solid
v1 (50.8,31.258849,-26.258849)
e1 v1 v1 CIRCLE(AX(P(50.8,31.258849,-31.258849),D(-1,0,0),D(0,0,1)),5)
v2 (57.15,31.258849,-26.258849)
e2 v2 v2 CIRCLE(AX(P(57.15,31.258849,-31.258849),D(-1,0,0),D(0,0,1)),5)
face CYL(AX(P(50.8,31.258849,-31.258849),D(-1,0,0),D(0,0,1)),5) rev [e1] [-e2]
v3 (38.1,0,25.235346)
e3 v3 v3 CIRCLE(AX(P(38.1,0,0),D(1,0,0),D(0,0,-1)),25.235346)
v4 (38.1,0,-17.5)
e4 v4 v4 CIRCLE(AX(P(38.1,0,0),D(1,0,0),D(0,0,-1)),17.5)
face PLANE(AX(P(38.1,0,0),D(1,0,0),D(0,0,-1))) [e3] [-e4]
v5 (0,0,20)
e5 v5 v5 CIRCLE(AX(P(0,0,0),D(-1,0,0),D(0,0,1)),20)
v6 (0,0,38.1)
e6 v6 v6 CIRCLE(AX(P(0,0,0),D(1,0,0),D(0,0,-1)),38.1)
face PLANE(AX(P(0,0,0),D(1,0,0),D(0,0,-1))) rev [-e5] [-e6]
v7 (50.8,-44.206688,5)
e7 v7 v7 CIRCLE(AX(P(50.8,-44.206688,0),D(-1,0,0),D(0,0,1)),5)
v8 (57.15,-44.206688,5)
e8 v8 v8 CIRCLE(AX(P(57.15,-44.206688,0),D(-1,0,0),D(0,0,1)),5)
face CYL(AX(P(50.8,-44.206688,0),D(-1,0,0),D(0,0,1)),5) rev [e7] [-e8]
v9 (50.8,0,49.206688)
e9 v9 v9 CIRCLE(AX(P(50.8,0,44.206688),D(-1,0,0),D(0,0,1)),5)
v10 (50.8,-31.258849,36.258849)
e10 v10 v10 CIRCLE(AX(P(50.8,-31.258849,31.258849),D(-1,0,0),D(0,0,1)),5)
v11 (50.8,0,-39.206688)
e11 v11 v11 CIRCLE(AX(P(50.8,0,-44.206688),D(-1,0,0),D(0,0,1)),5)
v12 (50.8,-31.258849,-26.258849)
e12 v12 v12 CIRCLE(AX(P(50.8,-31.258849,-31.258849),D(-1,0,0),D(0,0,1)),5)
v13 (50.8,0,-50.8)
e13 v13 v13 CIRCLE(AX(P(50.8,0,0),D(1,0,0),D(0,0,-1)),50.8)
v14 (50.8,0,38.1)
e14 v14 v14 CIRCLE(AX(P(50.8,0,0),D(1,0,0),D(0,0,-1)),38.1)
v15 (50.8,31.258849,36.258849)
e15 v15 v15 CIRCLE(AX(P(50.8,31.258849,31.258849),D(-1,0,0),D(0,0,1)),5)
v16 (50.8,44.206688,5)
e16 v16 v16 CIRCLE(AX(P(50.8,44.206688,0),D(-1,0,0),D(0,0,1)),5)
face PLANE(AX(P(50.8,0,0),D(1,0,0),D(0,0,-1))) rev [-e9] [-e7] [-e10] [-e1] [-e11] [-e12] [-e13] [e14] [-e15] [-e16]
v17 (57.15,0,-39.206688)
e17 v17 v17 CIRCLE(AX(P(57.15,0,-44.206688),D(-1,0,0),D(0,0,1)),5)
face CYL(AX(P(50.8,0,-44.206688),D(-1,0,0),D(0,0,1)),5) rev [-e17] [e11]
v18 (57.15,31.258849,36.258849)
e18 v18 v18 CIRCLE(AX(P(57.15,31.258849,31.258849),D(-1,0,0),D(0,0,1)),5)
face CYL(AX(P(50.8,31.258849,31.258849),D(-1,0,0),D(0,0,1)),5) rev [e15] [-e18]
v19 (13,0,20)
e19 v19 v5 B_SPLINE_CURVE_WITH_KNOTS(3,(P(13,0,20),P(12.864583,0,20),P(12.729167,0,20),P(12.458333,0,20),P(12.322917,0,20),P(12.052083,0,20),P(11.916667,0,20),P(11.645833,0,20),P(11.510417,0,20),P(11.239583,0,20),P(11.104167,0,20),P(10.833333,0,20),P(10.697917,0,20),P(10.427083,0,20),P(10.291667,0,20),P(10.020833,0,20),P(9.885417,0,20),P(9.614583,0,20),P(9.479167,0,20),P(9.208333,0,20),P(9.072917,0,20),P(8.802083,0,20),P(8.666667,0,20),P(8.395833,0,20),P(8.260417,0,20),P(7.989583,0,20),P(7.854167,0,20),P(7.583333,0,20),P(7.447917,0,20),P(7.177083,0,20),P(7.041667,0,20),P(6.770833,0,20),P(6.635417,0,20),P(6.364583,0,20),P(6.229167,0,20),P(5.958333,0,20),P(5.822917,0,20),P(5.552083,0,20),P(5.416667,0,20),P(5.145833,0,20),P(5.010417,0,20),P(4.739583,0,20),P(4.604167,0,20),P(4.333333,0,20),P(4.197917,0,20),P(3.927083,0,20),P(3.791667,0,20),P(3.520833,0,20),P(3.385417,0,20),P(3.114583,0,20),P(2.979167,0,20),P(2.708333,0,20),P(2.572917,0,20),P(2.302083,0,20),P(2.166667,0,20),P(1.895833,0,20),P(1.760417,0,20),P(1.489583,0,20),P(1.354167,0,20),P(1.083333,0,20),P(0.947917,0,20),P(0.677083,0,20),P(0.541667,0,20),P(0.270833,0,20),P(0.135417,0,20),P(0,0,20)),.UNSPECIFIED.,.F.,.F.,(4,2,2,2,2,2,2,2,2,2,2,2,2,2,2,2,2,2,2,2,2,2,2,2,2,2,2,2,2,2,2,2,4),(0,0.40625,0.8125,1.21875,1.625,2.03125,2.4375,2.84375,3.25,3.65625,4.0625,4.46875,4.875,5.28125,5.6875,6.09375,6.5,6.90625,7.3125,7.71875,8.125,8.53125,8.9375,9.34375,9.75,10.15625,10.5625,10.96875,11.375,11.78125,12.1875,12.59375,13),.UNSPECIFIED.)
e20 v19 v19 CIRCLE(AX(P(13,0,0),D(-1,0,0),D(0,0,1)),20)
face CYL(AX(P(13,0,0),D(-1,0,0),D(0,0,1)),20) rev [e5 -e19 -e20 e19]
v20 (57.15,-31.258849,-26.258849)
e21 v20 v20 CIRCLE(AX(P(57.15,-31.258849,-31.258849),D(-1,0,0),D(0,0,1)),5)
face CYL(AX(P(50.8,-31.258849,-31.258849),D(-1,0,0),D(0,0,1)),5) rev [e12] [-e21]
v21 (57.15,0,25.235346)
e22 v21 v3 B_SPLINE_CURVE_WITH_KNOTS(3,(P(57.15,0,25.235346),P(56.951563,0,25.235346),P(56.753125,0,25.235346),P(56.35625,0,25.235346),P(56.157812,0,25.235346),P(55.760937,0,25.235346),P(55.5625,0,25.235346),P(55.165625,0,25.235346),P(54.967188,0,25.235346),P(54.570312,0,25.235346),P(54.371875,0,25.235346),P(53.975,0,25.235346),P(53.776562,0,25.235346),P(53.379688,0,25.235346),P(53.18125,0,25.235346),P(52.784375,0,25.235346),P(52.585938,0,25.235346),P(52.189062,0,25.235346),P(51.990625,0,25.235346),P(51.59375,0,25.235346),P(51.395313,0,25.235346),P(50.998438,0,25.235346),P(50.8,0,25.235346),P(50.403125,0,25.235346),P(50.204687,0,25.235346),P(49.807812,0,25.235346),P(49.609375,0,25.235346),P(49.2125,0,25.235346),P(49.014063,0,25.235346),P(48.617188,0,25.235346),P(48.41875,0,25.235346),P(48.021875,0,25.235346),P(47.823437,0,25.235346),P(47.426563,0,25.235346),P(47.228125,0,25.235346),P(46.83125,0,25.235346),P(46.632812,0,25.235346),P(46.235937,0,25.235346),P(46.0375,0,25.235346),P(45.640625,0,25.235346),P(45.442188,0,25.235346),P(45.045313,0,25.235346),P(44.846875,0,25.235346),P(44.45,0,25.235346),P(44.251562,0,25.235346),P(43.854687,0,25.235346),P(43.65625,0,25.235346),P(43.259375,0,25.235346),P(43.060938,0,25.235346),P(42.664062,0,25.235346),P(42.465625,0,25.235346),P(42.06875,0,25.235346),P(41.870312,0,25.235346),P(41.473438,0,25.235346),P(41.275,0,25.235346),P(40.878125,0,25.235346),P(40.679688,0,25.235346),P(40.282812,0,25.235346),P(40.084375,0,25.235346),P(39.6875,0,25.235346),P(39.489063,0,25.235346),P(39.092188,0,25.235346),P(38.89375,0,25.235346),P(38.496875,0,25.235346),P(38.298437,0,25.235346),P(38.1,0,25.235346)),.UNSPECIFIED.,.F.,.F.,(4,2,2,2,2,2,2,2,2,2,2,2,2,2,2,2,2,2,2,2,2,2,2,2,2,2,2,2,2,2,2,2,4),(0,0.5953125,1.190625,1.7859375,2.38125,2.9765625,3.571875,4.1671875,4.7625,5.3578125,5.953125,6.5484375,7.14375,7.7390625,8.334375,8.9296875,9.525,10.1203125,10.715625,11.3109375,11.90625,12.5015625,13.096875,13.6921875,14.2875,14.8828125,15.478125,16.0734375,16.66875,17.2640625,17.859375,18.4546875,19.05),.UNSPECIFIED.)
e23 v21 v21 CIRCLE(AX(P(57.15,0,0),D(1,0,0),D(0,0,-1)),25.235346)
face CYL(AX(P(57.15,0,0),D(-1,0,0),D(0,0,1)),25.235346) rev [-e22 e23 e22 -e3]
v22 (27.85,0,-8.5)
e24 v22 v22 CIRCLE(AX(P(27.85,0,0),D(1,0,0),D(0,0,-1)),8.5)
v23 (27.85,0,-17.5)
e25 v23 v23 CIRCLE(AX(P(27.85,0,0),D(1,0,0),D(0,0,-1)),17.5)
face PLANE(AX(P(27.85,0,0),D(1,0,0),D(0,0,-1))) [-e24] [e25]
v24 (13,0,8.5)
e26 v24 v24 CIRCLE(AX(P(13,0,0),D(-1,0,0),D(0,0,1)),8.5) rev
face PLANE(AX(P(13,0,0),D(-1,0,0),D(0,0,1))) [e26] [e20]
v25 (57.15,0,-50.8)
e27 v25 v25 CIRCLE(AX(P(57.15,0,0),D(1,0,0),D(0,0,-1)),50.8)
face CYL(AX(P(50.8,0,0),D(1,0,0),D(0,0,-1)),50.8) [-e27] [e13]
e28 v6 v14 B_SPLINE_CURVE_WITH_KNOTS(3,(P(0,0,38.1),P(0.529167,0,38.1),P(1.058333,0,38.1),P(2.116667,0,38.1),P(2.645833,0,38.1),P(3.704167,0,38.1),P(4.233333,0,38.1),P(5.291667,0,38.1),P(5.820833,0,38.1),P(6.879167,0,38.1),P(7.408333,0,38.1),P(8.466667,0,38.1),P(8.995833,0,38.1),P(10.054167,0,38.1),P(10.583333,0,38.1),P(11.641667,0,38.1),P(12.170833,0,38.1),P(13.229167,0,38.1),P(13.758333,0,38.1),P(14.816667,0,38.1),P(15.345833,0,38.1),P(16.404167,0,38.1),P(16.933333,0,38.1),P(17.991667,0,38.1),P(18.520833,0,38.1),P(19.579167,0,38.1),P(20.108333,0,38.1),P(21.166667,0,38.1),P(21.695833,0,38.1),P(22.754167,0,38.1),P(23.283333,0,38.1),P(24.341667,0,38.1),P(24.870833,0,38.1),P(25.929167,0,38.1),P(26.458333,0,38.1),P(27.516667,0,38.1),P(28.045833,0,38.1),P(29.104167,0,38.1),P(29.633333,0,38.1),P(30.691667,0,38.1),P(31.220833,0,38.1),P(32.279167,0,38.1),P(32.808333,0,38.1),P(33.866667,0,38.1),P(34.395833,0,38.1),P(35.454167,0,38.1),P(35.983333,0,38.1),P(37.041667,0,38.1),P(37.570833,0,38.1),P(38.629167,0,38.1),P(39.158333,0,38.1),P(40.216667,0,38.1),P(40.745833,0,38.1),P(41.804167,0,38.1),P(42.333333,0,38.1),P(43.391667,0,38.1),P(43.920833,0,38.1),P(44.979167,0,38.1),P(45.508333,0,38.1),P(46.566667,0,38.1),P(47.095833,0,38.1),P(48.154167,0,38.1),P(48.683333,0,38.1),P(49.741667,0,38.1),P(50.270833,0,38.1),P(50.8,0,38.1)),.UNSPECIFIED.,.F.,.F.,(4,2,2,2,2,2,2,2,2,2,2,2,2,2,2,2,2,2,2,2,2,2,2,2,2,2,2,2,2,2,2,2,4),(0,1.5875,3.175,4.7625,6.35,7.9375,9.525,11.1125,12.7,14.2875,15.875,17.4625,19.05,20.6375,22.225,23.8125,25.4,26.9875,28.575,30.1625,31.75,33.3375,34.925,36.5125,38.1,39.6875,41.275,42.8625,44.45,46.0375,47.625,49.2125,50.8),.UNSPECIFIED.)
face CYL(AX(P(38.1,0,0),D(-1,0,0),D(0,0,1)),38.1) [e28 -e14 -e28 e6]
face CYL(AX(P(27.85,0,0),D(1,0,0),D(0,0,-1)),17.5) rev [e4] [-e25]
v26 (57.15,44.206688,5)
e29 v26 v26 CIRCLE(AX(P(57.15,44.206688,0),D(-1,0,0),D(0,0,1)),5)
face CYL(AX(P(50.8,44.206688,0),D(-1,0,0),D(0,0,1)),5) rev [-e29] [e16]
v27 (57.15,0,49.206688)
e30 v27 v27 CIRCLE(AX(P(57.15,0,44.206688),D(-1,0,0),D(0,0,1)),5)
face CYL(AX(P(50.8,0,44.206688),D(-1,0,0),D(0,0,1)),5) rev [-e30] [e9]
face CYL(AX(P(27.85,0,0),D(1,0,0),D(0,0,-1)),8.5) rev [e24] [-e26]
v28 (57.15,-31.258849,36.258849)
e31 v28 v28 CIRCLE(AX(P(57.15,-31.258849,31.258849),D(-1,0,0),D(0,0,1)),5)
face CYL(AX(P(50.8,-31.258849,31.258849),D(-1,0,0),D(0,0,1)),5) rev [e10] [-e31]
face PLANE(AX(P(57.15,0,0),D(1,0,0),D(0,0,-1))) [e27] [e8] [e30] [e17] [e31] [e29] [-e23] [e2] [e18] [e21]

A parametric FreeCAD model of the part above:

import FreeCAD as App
import Part
import Sketcher

V = App.Vector
Q = App.Units.Quantity

doc = App.newDocument("Part")
body = doc.addObject("PartDesign::Body", "Body")

# Sketch on YZ plane
sketch1 = body.newObject("Sketcher::SketchObject", "Sketch")
sketch1.AttachmentSupport = (doc.getObject("YZ_Plane"), [""])
sketch1.MapMode = "FlatFace"
sketch1.addGeometry(Part.Circle(V(0, 0, 0), V(0, 0, 1), 38.1), False)
sketch1.addConstraint([
    Sketcher.Constraint("Coincident", 0, 3, -1, 1),
    Sketcher.Constraint("Diameter", 0, Q("76.2 mm")),
])
pad1 = body.newObject("PartDesign::Pad", "Pad")
pad1.Profile = sketch1
pad1.Length = 38.1

# Sketch on YZ plane
sketch2 = body.newObject("Sketcher::SketchObject", "Sketch001")
sketch2.AttachmentSupport = (doc.getObject("YZ_Plane"), [""])
sketch2.MapMode = "FlatFace"
sketch2.AttachmentOffset = App.Placement(V(0, 0, 38.1), App.Rotation())
sketch2.addGeometry(Part.Circle(V(0, 0, 0), V(0, 0, 1), 17.5), False)
sketch2.addConstraint([
    Sketcher.Constraint("Coincident", 0, 3, -1, 1),
    Sketcher.Constraint("Diameter", 0, Q("35 mm")),
])
pocket1 = body.newObject("PartDesign::Pocket", "Pocket")
pocket1.Profile = sketch2
pocket1.Length = 10.25

# Sketch on YZ plane
sketch3 = body.newObject("Sketcher::SketchObject", "Sketch002")
sketch3.AttachmentSupport = (doc.getObject("YZ_Plane"), [""])
sketch3.MapMode = "FlatFace"
sketch3.AttachmentOffset = App.Placement(V(0, 0, 27.85), App.Rotation())
sketch3.addGeometry(Part.Circle(V(0, 0, 0), V(0, 0, 1), 8.5), False)
sketch3.addConstraint([
    Sketcher.Constraint("Coincident", 0, 3, -1, 1),
    Sketcher.Constraint("Diameter", 0, Q("17 mm")),
])
doc.recompute()
hole = body.newObject("PartDesign::Hole", "Hole")
hole.Profile = sketch3
hole.ThreadType = "None"
hole.Diameter = 17
hole.DepthType = "ThroughAll"

# Sketch on YZ plane
sketch4 = body.newObject("Sketcher::SketchObject", "Sketch003")
sketch4.AttachmentSupport = (doc.getObject("YZ_Plane"), [""])
sketch4.MapMode = "FlatFace"
sketch4.AttachmentOffset = App.Placement(V(0, 0, 38.1), App.Rotation())
sketch4.addGeometry([
    Part.Circle(V(0, 0, 0), V(0, 0, 1), 38.1),
    Part.Circle(V(0, 0, 0), V(0, 0, 1), 25.235346),
], False)
sketch4.addConstraint([
    Sketcher.Constraint("Coincident", 0, 3, -1, 1),
    Sketcher.Constraint("Coincident", 1, 3, -1, 1),
    Sketcher.Constraint("Diameter", 0, Q("76.2 mm")),
    Sketcher.Constraint("Diameter", 1, Q("50.470693 mm")),
])
pad2 = body.newObject("PartDesign::Pad", "Pad001")
pad2.Profile = sketch4
pad2.Length = 19.05

# Sketch on YZ plane
sketch5 = body.newObject("Sketcher::SketchObject", "Sketch004")
sketch5.AttachmentSupport = (doc.getObject("YZ_Plane"), [""])
sketch5.MapMode = "FlatFace"
sketch5.AttachmentOffset = App.Placement(V(0, 0, 50.8), App.Rotation())
sketch5.addGeometry([
    Part.Circle(V(0, 0, 0), V(0, 0, 1), 50.8),
    Part.Circle(V(0, 0, 0), V(0, 0, 1), 25.235346),
], False)
sketch5.addConstraint([
    Sketcher.Constraint("Coincident", 0, 3, -1, 1),
    Sketcher.Constraint("Coincident", 1, 3, -1, 1),
    Sketcher.Constraint("Diameter", 0, Q("101.6 mm")),
    Sketcher.Constraint("Diameter", 1, Q("50.470693 mm")),
])
pad3 = body.newObject("PartDesign::Pad", "Pad002")
pad3.Profile = sketch5
pad3.Length = 6.35

# Sketch on YZ plane
sketch6 = body.newObject("Sketcher::SketchObject", "Sketch005")
sketch6.AttachmentSupport = (doc.getObject("YZ_Plane"), [""])
sketch6.MapMode = "FlatFace"
sketch6.addGeometry(Part.Circle(V(0, 0, 0), V(0, 0, 1), 20), False)
sketch6.addConstraint([
    Sketcher.Constraint("Coincident", 0, 3, -1, 1),
    Sketcher.Constraint("Diameter", 0, Q("40 mm")),
])
pocket2 = body.newObject("PartDesign::Pocket", "Pocket001")
pocket2.Profile = sketch6
pocket2.Length = 13
pocket2.Reversed = True

# Sketch on YZ plane
sketch7 = body.newObject("Sketcher::SketchObject", "Sketch006")
sketch7.AttachmentSupport = (doc.getObject("YZ_Plane"), [""])
sketch7.MapMode = "FlatFace"
sketch7.AttachmentOffset = App.Placement(V(0, 0, 50.8), App.Rotation())
sketch7.addGeometry([
    Part.Circle(V(0, -44.206688, 0), V(0, 0, 1), 5),  # 0
    Part.Circle(V(31.258849, -31.258849, 0), V(0, 0, 1), 5),  # 1
    Part.Circle(V(44.206688, 0, 0), V(0, 0, 1), 5),  # 2
    Part.Circle(V(31.258849, 31.258849, 0), V(0, 0, 1), 5),  # 3
    Part.Circle(V(0, 44.206688, 0), V(0, 0, 1), 5),  # 4
    Part.Circle(V(-31.258849, 31.258849, 0), V(0, 0, 1), 5),  # 5
    Part.Circle(V(-44.206688, 0, 0), V(0, 0, 1), 5),  # 6
    Part.Circle(V(-31.258849, -31.258849, 0), V(0, 0, 1), 5),  # 7
    Part.Circle(V(0, 0, 0), V(0, 0, 1), 5),  # 8
], False)
sketch7.addConstraint([
    Sketcher.Constraint("Coincident", 8, 3, -1, 1),
    Sketcher.Constraint("Equal", 0, 1),
    Sketcher.Constraint("Equal", 1, 2),
    Sketcher.Constraint("Equal", 2, 3),
    Sketcher.Constraint("Equal", 3, 4),
    Sketcher.Constraint("Equal", 4, 5),
    Sketcher.Constraint("Equal", 5, 6),
    Sketcher.Constraint("Equal", 6, 7),
    Sketcher.Constraint("Equal", 7, 8),
    Sketcher.Constraint("Symmetric", 0, 3, 4, 3, -1, 1),
    Sketcher.Constraint("Symmetric", 1, 3, 5, 3, -1, 1),
    Sketcher.Constraint("Symmetric", 2, 3, 6, 3, -1, 1),
    Sketcher.Constraint("Symmetric", 3, 3, 7, 3, -1, 1),
    Sketcher.Constraint("Symmetric", 3, 3, 5, 3, -2),
    Sketcher.Constraint("PointOnObject", 0, 3, -2),
    Sketcher.Constraint("PointOnObject", 2, 3, -1),
    Sketcher.Constraint("Diameter", 0, Q("10 mm")),
    Sketcher.Constraint("DistanceY", 0, 3, -1, 1, Q("44.206688 mm")),
    Sketcher.Constraint("DistanceX", -1, 1, 1, 3, Q("31.258849 mm")),
    Sketcher.Constraint("DistanceY", 1, 3, -1, 1, Q("31.258849 mm")),
    Sketcher.Constraint("DistanceX", -1, 1, 2, 3, Q("44.206688 mm")),
])
doc.recompute()
hole2 = body.newObject("PartDesign::Hole", "Hole001")
hole2.Profile = sketch7
hole2.ThreadType = "None"
hole2.Diameter = 10
hole2.DepthType = "ThroughAll"
hole2.Reversed = True

doc.recompute()
